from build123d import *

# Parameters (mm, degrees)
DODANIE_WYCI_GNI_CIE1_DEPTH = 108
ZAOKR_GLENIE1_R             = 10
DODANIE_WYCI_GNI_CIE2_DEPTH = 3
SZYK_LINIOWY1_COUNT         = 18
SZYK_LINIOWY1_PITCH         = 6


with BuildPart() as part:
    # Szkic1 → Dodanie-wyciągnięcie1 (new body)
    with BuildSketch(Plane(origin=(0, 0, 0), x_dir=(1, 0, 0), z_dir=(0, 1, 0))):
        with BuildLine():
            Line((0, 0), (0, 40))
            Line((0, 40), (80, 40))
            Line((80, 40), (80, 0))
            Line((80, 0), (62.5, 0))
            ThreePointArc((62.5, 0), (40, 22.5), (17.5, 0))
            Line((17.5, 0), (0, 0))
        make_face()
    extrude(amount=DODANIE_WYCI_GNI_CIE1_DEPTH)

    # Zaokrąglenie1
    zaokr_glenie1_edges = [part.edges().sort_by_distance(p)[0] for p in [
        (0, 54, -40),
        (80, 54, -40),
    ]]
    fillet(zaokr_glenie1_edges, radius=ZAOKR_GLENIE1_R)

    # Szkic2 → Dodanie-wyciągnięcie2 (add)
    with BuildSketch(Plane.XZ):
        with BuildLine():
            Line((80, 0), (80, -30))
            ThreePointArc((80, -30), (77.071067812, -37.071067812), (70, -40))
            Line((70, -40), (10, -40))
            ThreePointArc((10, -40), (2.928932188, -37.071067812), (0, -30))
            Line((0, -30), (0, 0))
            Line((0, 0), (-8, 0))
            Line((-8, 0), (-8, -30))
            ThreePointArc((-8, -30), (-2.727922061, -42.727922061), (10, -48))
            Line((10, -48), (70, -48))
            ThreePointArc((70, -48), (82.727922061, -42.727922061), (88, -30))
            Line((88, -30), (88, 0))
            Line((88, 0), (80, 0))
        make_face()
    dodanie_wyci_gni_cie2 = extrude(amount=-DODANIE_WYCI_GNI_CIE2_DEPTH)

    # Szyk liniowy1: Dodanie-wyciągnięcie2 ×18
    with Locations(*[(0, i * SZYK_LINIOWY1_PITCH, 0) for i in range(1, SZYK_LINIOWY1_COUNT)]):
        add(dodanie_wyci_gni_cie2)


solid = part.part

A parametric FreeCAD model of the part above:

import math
import FreeCAD as App
import Part
import Sketcher

V = App.Vector
Q = App.Units.Quantity


def edges_at(feature, points):
    """Names of the edges that pass closest to the given points."""
    edges = feature.Shape.Edges
    near = lambda p: min(range(len(edges)), key=lambda i: edges[i].distToShape(Part.Vertex(*p))[0])
    return sorted({f"Edge{near(p) + 1}" for p in points})

doc = App.newDocument("Part")
body = doc.addObject("PartDesign::Body", "Body")

sketch1 = body.newObject("Sketcher::SketchObject", "Sketch")
sketch1.AttachmentSupport = (doc.getObject("XZ_Plane"), [""])
sketch1.MapMode = "FlatFace"
sketch1.addGeometry([
    Part.LineSegment(V(0, -40, 0), V(0, 0, 0)),
    Part.LineSegment(V(0, 0, 0), V(17.5, 0, 0)),
    Part.ArcOfCircle(Part.Circle(V(40, 0, 0), V(0, 0, 1), 22.5), math.radians(180), math.radians(360)),
    Part.LineSegment(V(62.5, 0, 0), V(80, 0, 0)),
    Part.LineSegment(V(80, 0, 0), V(80, -40, 0)),
    Part.LineSegment(V(80, -40, 0), V(0, -40, 0)),
], False)
sketch1.addConstraint([
    Sketcher.Constraint("Coincident", 0, 2, 1, 1),
    Sketcher.Constraint("Coincident", 1, 2, 2, 1),
    Sketcher.Constraint("Coincident", 2, 2, 3, 1),
    Sketcher.Constraint("Coincident", 3, 2, 4, 1),
    Sketcher.Constraint("Coincident", 4, 2, 5, 1),
    Sketcher.Constraint("Coincident", 5, 2, 0, 1),
    Sketcher.Constraint("Vertical", 0),
    Sketcher.Constraint("Horizontal", 1),
    Sketcher.Constraint("Horizontal", 3),
    Sketcher.Constraint("Vertical", 4),
    Sketcher.Constraint("Horizontal", 5),
    Sketcher.Constraint("Coincident", 0, 2, -1, 1),
    Sketcher.Constraint("PointOnObject", 2, 3, -1),
    Sketcher.Constraint("PointOnObject", 2, 2, -1),
    Sketcher.Constraint("Equal", 1, 3),
    Sketcher.Constraint("Radius", 2, Q("22.5 mm")),
    Sketcher.Constraint("DistanceX", 5, 2, 5, 1, Q("80 mm")),
    Sketcher.Constraint("DistanceY", 0, 1, 0, 2, Q("40 mm")),
])
pad1 = body.newObject("PartDesign::Pad", "Pad")
pad1.Profile = sketch1
pad1.Length = 108
pad1.Reversed = True
doc.recompute()

fillet = body.newObject("PartDesign::Fillet", "Fillet")
fillet.Base = (pad1, edges_at(pad1, [(0, 54, -40), (80, 54, -40)]))
fillet.Radius = 10

sketch2 = body.newObject("Sketcher::SketchObject", "Sketch001")
sketch2.AttachmentSupport = (doc.getObject("XZ_Plane"), [""])
sketch2.MapMode = "FlatFace"
sketch2.addGeometry([
    Part.LineSegment(V(80, 0, 0), V(80, -30, 0)),
    Part.ArcOfCircle(Part.Circle(V(70, -30, 0), V(0, 0, 1), 10), math.radians(-90), math.radians(0)),
    Part.LineSegment(V(70, -40, 0), V(10, -40, 0)),
    Part.ArcOfCircle(Part.Circle(V(10, -30, 0), V(0, 0, 1), 10), math.radians(180), math.radians(270)),
    Part.LineSegment(V(0, -30, 0), V(0, 0, 0)),
    Part.LineSegment(V(0, 0, 0), V(-8, 0, 0)),
    Part.LineSegment(V(-8, 0, 0), V(-8, -30, 0)),
    Part.ArcOfCircle(Part.Circle(V(10, -30, 0), V(0, 0, 1), 18), math.radians(-180), math.radians(-90)),
    Part.LineSegment(V(10, -48, 0), V(70, -48, 0)),
    Part.ArcOfCircle(Part.Circle(V(70, -30, 0), V(0, 0, 1), 18), math.radians(-90), math.radians(0)),
    Part.LineSegment(V(88, -30, 0), V(88, 0, 0)),
    Part.LineSegment(V(88, 0, 0), V(80, 0, 0)),
], False)
sketch2.addConstraint([
    Sketcher.Constraint("Tangent", 0, 2, 1, 2),
    Sketcher.Constraint("Tangent", 1, 1, 2, 1),
    Sketcher.Constraint("Tangent", 2, 2, 3, 2),
    Sketcher.Constraint("Tangent", 3, 1, 4, 1),
    Sketcher.Constraint("Coincident", 4, 2, 5, 1),
    Sketcher.Constraint("Coincident", 5, 2, 6, 1),
    Sketcher.Constraint("Tangent", 6, 2, 7, 1),
    Sketcher.Constraint("Tangent", 7, 2, 8, 1),
    Sketcher.Constraint("Tangent", 8, 2, 9, 1),
    Sketcher.Constraint("Tangent", 9, 2, 10, 1),
    Sketcher.Constraint("Coincident", 10, 2, 11, 1),
    Sketcher.Constraint("Coincident", 11, 2, 0, 1),
    Sketcher.Constraint("Vertical", 0),
    Sketcher.Constraint("Horizontal", 2),
    Sketcher.Constraint("Vertical", 4),
    Sketcher.Constraint("Horizontal", 5),
    Sketcher.Constraint("Vertical", 6),
    Sketcher.Constraint("Horizontal", 8),
    Sketcher.Constraint("Vertical", 10),
    Sketcher.Constraint("Horizontal", 11),
    Sketcher.Constraint("Coincident", 4, 2, -1, 1),
    Sketcher.Constraint("Coincident", 7, 3, 3, 3),
    Sketcher.Constraint("Coincident", 9, 3, 1, 3),
    Sketcher.Constraint("Equal", 1, 3),
    Sketcher.Constraint("PointOnObject", 10, 2, -1),
    Sketcher.Constraint("Radius", 1, Q("10 mm")),
    Sketcher.Constraint("Radius", 7, Q("18 mm")),
    Sketcher.Constraint("DistanceX", 2, 2, 2, 1, Q("60 mm")),
    Sketcher.Constraint("DistanceY", 0, 2, 0, 1, Q("30 mm")),
])
pad2 = body.newObject("PartDesign::Pad", "Pad001")
pad2.Profile = sketch2
pad2.Length = 3
pad2.Reversed = True
doc.recompute()

linearpattern = body.newObject("PartDesign::LinearPattern", "LinearPattern")
linearpattern.Originals = [pad2]
linearpattern.Direction = (doc.getObject("Y_Axis"), [""])
linearpattern.Mode = "offset"
linearpattern.Offset = 6
linearpattern.Occurrences = 18
body.Tip = linearpattern

doc.recompute()
